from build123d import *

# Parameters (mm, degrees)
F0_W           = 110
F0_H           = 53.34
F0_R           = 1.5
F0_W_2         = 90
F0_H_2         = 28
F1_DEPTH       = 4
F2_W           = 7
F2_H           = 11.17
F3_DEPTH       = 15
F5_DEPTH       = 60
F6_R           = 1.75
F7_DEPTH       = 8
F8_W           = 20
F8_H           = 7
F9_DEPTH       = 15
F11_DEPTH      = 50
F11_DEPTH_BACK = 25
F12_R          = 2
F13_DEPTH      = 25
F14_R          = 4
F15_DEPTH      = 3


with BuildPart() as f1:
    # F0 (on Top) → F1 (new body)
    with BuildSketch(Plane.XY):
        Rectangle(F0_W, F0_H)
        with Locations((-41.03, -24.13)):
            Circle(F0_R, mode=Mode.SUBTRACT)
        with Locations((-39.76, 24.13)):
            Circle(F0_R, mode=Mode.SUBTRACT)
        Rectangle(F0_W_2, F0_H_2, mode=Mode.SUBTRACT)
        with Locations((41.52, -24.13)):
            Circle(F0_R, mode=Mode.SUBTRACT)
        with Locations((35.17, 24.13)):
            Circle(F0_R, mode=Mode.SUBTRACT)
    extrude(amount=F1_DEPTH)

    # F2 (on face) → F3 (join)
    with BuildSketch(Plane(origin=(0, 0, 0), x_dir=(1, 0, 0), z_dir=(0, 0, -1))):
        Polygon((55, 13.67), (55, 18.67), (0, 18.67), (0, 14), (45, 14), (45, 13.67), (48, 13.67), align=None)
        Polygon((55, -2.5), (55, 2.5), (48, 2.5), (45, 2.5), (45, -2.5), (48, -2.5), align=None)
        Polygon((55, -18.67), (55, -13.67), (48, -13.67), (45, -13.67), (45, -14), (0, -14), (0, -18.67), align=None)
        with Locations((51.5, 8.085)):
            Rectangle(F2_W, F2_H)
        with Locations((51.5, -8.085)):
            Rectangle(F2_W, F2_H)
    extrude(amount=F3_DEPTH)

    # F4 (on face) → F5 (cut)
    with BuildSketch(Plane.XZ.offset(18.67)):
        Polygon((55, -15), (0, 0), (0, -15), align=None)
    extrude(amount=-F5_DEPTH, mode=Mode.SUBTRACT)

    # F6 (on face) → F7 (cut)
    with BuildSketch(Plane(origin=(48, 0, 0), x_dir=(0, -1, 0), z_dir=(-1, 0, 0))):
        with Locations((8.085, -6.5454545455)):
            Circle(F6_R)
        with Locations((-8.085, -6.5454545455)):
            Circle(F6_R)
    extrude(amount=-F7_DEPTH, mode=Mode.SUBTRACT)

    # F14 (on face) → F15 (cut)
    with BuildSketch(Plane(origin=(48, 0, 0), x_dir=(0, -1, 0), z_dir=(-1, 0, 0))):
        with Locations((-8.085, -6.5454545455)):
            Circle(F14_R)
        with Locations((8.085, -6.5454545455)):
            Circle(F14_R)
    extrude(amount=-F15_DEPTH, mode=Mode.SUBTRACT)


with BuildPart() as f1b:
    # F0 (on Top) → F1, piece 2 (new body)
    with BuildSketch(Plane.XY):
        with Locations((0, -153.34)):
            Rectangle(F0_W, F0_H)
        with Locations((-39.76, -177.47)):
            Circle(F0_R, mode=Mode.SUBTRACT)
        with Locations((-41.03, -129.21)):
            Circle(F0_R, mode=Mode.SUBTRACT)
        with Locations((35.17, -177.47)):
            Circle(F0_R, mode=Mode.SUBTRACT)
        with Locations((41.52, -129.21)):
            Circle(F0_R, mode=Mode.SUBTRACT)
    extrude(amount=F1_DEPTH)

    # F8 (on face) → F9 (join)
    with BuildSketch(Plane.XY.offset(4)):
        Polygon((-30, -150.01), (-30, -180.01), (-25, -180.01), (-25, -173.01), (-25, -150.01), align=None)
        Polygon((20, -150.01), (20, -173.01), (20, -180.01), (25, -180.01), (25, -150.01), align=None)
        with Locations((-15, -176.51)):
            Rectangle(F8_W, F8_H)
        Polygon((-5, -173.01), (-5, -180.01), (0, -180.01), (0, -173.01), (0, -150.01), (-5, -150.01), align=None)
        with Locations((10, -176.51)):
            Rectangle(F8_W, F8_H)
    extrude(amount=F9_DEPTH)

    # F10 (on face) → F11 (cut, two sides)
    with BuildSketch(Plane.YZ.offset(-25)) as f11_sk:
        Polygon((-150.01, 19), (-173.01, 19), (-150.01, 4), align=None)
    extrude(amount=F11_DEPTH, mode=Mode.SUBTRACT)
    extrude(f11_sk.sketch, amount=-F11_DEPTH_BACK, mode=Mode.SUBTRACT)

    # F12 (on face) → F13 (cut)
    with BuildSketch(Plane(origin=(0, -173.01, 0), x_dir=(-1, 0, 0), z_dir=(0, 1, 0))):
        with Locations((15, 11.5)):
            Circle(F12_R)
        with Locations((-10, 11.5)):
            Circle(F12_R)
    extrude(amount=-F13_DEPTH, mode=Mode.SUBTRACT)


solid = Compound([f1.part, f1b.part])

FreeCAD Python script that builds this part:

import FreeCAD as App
import Part
import Sketcher

V = App.Vector

doc = App.newDocument("Part")
body = doc.addObject("PartDesign::Body", "Body")

# Sketch on XY plane
sketch1 = body.newObject("Sketcher::SketchObject", "Sketch")
sketch1.AttachmentSupport = (doc.getObject("XY_Plane"), [""])
sketch1.MapMode = "FlatFace"
sketch1.addGeometry([
    Part.LineSegment(V(-55, 26.7, 0), V(-55, -26.7, 0)),  # 0
    Part.LineSegment(V(-55, -26.7, 0), V(55, -26.7, 0)),  # 1
    Part.LineSegment(V(55, -26.7, 0), V(55, 26.7, 0)),  # 2
    Part.LineSegment(V(55, 26.7, 0), V(-55, 26.7, 0)),  # 3
    Part.Circle(V(-41, -24.1, 0), V(0, 0, 1), 1.5),  # 4
    Part.Circle(V(41.5, -24.1, 0), V(0, 0, 1), 1.5),  # 5
    Part.Circle(V(-39.8, 24.1, 0), V(0, 0, 1), 1.5),  # 6
    Part.LineSegment(V(45, -14, 0), V(-45, -14, 0)),  # 7
    Part.LineSegment(V(-45, -14, 0), V(-45, 14, 0)),  # 8
    Part.LineSegment(V(-45, 14, 0), V(45, 14, 0)),  # 9
    Part.LineSegment(V(45, 14, 0), V(45, -14, 0)),  # 10
    Part.Circle(V(35.2, 24.1, 0), V(0, 0, 1), 1.5),  # 11
], False)
sketch1.addConstraint([
    Sketcher.Constraint("Coincident", 0, 2, 1, 1),
    Sketcher.Constraint("Coincident", 1, 2, 2, 1),
    Sketcher.Constraint("Coincident", 2, 2, 3, 1),
    Sketcher.Constraint("Coincident", 3, 2, 0, 1),
    Sketcher.Constraint("Coincident", 7, 2, 8, 1),
    Sketcher.Constraint("Coincident", 8, 2, 9, 1),
    Sketcher.Constraint("Coincident", 9, 2, 10, 1),
    Sketcher.Constraint("Coincident", 10, 2, 7, 1),
    Sketcher.Constraint("Vertical", 0),
    Sketcher.Constraint("Horizontal", 1),
    Sketcher.Constraint("Vertical", 2),
    Sketcher.Constraint("Horizontal", 3),
    Sketcher.Constraint("Horizontal", 7),
    Sketcher.Constraint("Vertical", 8),
    Sketcher.Constraint("Horizontal", 9),
    Sketcher.Constraint("Vertical", 10),
    Sketcher.Constraint("Equal", 4, 5),
    Sketcher.Constraint("Equal", 5, 6),
    Sketcher.Constraint("Equal", 6, 11),
    Sketcher.Constraint("Symmetric", 0, 2, 2, 2, -1, 1),
    Sketcher.Constraint("Symmetric", 7, 2, 9, 2, -1, 1),
    Sketcher.Constraint("Horizontal", 4, 3, 5, 3),
    Sketcher.Constraint("Horizontal", 6, 3, 11, 3),
    Sketcher.Constraint("Diameter", 4, 3.0),
    Sketcher.Constraint("DistanceX", 1, 1, 1, 2, 110.0),
    Sketcher.Constraint("DistanceX", 7, 2, 7, 1, 90.0),
    Sketcher.Constraint("DistanceY", 8, 1, 8, 2, 28.0),
    Sketcher.Constraint("DistanceY", 0, 2, 0, 1, 53.34),
    Sketcher.Constraint("DistanceX", 4, 3, 11, 3, 76.2),
    Sketcher.Constraint("DistanceY", 0, 2, 6, 3, 50.8),
    Sketcher.Constraint("DistanceY", 5, 3, 2, 2, 50.8),
    Sketcher.Constraint("DistanceX", 4, 3, -1, 1, 41.03),
    Sketcher.Constraint("DistanceX", -1, 1, 5, 3, 41.52),
    Sketcher.Constraint("DistanceX", 6, 3, -1, 1, 39.76),
])
pad1 = body.newObject("PartDesign::Pad", "Pad")
pad1.Profile = sketch1
pad1.Length = 4

# Sketch on XY plane
sketch2 = body.newObject("Sketcher::SketchObject", "Sketch001")
sketch2.AttachmentSupport = (doc.getObject("XY_Plane"), [""])
sketch2.MapMode = "FlatFace"
sketch2.addGeometry([
    Part.LineSegment(V(55, -18.67, 0), V(0, -18.67, 0)),  # 0
    Part.LineSegment(V(0, -18.67, 0), V(0, -14, 0)),  # 1
    Part.LineSegment(V(0, -14, 0), V(45, -14, 0)),  # 2
    Part.LineSegment(V(45, -14, 0), V(45, -13.67, 0)),  # 3
    Part.LineSegment(V(45, -13.67, 0), V(48, -13.67, 0)),  # 4
    Part.LineSegment(V(48, -13.67, 0), V(48, -2.5, 0)),  # 5
    Part.LineSegment(V(48, -2.5, 0), V(45, -2.5, 0)),  # 6
    Part.LineSegment(V(45, -2.5, 0), V(45, 2.5, 0)),  # 7
    Part.LineSegment(V(45, 2.5, 0), V(48, 2.5, 0)),  # 8
    Part.LineSegment(V(48, 2.5, 0), V(48, 13.67, 0)),  # 9
    Part.LineSegment(V(48, 13.67, 0), V(45, 13.67, 0)),  # 10
    Part.LineSegment(V(45, 13.67, 0), V(45, 14, 0)),  # 11
    Part.LineSegment(V(45, 14, 0), V(0, 14, 0)),  # 12
    Part.LineSegment(V(0, 14, 0), V(0, 18.67, 0)),  # 13
    Part.LineSegment(V(0, 18.67, 0), V(55, 18.67, 0)),  # 14
    Part.LineSegment(V(55, 18.67, 0), V(55, -18.67, 0)),  # 15
], False)
sketch2.addConstraint([
    Sketcher.Constraint("Coincident", 0, 2, 1, 1),
    Sketcher.Constraint("Coincident", 1, 2, 2, 1),
    Sketcher.Constraint("Coincident", 2, 2, 3, 1),
    Sketcher.Constraint("Coincident", 3, 2, 4, 1),
    Sketcher.Constraint("Coincident", 4, 2, 5, 1),
    Sketcher.Constraint("Coincident", 5, 2, 6, 1),
    Sketcher.Constraint("Coincident", 6, 2, 7, 1),
    Sketcher.Constraint("Coincident", 7, 2, 8, 1),
    Sketcher.Constraint("Coincident", 8, 2, 9, 1),
    Sketcher.Constraint("Coincident", 9, 2, 10, 1),
    Sketcher.Constraint("Coincident", 10, 2, 11, 1),
    Sketcher.Constraint("Coincident", 11, 2, 12, 1),
    Sketcher.Constraint("Coincident", 12, 2, 13, 1),
    Sketcher.Constraint("Coincident", 13, 2, 14, 1),
    Sketcher.Constraint("Coincident", 14, 2, 15, 1),
    Sketcher.Constraint("Coincident", 15, 2, 0, 1),
    Sketcher.Constraint("Horizontal", 0),
    Sketcher.Constraint("Vertical", 1),
    Sketcher.Constraint("Horizontal", 2),
    Sketcher.Constraint("Vertical", 3),
    Sketcher.Constraint("Horizontal", 4),
    Sketcher.Constraint("Vertical", 5),
    Sketcher.Constraint("Horizontal", 6),
    Sketcher.Constraint("Vertical", 7),
    Sketcher.Constraint("Horizontal", 8),
    Sketcher.Constraint("Vertical", 9),
    Sketcher.Constraint("Horizontal", 10),
    Sketcher.Constraint("Vertical", 11),
    Sketcher.Constraint("Horizontal", 12),
    Sketcher.Constraint("Vertical", 13),
    Sketcher.Constraint("Horizontal", 14),
    Sketcher.Constraint("Vertical", 15),
    Sketcher.Constraint("Symmetric", 1, 2, 12, 2, -1, 1),
    Sketcher.Constraint("Symmetric", 5, 2, 8, 2, -1),
    Sketcher.Constraint("Symmetric", 3, 2, 10, 2, -1),
    Sketcher.Constraint("Symmetric", 0, 2, 13, 2, -1),
    Sketcher.Constraint("Vertical", 3, 2, 6, 2),
    Sketcher.Constraint("DistanceX", 0, 2, 0, 1, 55.0),
    Sketcher.Constraint("DistanceX", 2, 1, 2, 2, 45.0),
    Sketcher.Constraint("DistanceX", 4, 1, 4, 2, 3.0),
    Sketcher.Constraint("DistanceY", 7, 1, 7, 2, 5.0),
    Sketcher.Constraint("DistanceY", 1, 2, -1, 1, 14.0),
    Sketcher.Constraint("DistanceY", 0, 2, 3, 2, 5.0),
    Sketcher.Constraint("DistanceY", 1, 1, 1, 2, 4.67),
])
pad2 = body.newObject("PartDesign::Pad", "Pad001")
pad2.Profile = sketch2
pad2.Length = 15
pad2.Reversed = True

# Sketch on XZ plane
sketch3 = body.newObject("Sketcher::SketchObject", "Sketch002")
sketch3.AttachmentSupport = (doc.getObject("XZ_Plane"), [""])
sketch3.MapMode = "FlatFace"
sketch3.AttachmentOffset = App.Placement(V(0, 0, 18.67), App.Rotation())
sketch3.addGeometry([
    Part.LineSegment(V(55, -15, 0), V(0, 0, 0)),
    Part.LineSegment(V(0, 0, 0), V(0, -15, 0)),
    Part.LineSegment(V(0, -15, 0), V(55, -15, 0)),
], False)
sketch3.addConstraint([
    Sketcher.Constraint("Coincident", 0, 2, 1, 1),
    Sketcher.Constraint("Coincident", 1, 2, 2, 1),
    Sketcher.Constraint("Coincident", 2, 2, 0, 1),
    Sketcher.Constraint("Vertical", 1),
    Sketcher.Constraint("Horizontal", 2),
    Sketcher.Constraint("Coincident", 0, 2, -1, 1),
    Sketcher.Constraint("DistanceX", 2, 1, 2, 2, 55.0),
    Sketcher.Constraint("DistanceY", 1, 2, 1, 1, 15.0),
])
pocket1 = body.newObject("PartDesign::Pocket", "Pocket")
pocket1.Profile = sketch3
pocket1.Length = 60

# Sketch on YZ plane
sketch4 = body.newObject("Sketcher::SketchObject", "Sketch003")
sketch4.AttachmentSupport = (doc.getObject("YZ_Plane"), [""])
sketch4.MapMode = "FlatFace"
sketch4.AttachmentOffset = App.Placement(V(0, 0, 48), App.Rotation())
sketch4.addGeometry([
    Part.Circle(V(-8.1, -6.5, 0), V(0, 0, 1), 1.8),
    Part.Circle(V(8.1, -6.5, 0), V(0, 0, 1), 1.8),
], False)
sketch4.addConstraint([
    Sketcher.Constraint("Equal", 0, 1),
    Sketcher.Constraint("Symmetric", 0, 3, 1, 3, -2),
    Sketcher.Constraint("Diameter", 0, 3.5),
    Sketcher.Constraint("DistanceX", 0, 3, 1, 3, 16.17),
    Sketcher.Constraint("DistanceY", 0, 3, -1, 1, 6.545455),
])
pocket2 = body.newObject("PartDesign::Pocket", "Pocket001")
pocket2.Profile = sketch4
pocket2.Length = 8
pocket2.Reversed = True

# Sketch on YZ plane
sketch5 = body.newObject("Sketcher::SketchObject", "Sketch004")
sketch5.AttachmentSupport = (doc.getObject("YZ_Plane"), [""])
sketch5.MapMode = "FlatFace"
sketch5.AttachmentOffset = App.Placement(V(0, 0, 48), App.Rotation())
sketch5.addGeometry([
    Part.Circle(V(8.1, -6.5, 0), V(0, 0, 1), 4),
    Part.Circle(V(-8.1, -6.5, 0), V(0, 0, 1), 4),
], False)
sketch5.addConstraint([
    Sketcher.Constraint("Equal", 0, 1),
    Sketcher.Constraint("Symmetric", 0, 3, 1, 3, -2),
    Sketcher.Constraint("Diameter", 0, 8.0),
    Sketcher.Constraint("DistanceX", 1, 3, 0, 3, 16.17),
    Sketcher.Constraint("DistanceY", 0, 3, -1, 1, 6.545455),
])
pocket3 = body.newObject("PartDesign::Pocket", "Pocket002")
pocket3.Profile = sketch5
pocket3.Length = 3
pocket3.Reversed = True
body2 = doc.addObject("PartDesign::Body", "Body001")

# Sketch on XY plane
sketch6 = body2.newObject("Sketcher::SketchObject", "Sketch005")
sketch6.AttachmentSupport = (doc.getObject("XY_Plane001"), [""])
sketch6.MapMode = "FlatFace"
sketch6.addGeometry([
    Part.LineSegment(V(-55, -126.7, 0), V(-55, -180, 0)),  # 0
    Part.LineSegment(V(-55, -180, 0), V(55, -180, 0)),  # 1
    Part.LineSegment(V(55, -180, 0), V(55, -126.7, 0)),  # 2
    Part.LineSegment(V(55, -126.7, 0), V(-55, -126.7, 0)),  # 3
    Part.Circle(V(-39.8, -177.5, 0), V(0, 0, 1), 1.5),  # 4
    Part.Circle(V(35.2, -177.5, 0), V(0, 0, 1), 1.5),  # 5
    Part.Circle(V(-41, -129.2, 0), V(0, 0, 1), 1.5),  # 6
    Part.Circle(V(41.5, -129.2, 0), V(0, 0, 1), 1.5),  # 7
], False)
sketch6.addConstraint([
    Sketcher.Constraint("Coincident", 0, 2, 1, 1),
    Sketcher.Constraint("Coincident", 1, 2, 2, 1),
    Sketcher.Constraint("Coincident", 2, 2, 3, 1),
    Sketcher.Constraint("Coincident", 3, 2, 0, 1),
    Sketcher.Constraint("Vertical", 0),
    Sketcher.Constraint("Horizontal", 1),
    Sketcher.Constraint("Vertical", 2),
    Sketcher.Constraint("Horizontal", 3),
    Sketcher.Constraint("Equal", 4, 5),
    Sketcher.Constraint("Equal", 5, 6),
    Sketcher.Constraint("Equal", 6, 7),
    Sketcher.Constraint("Horizontal", 4, 3, 5, 3),
    Sketcher.Constraint("Horizontal", 6, 3, 7, 3),
    Sketcher.Constraint("Diameter", 4, 3.0),
    Sketcher.Constraint("DistanceX", 1, 1, 1, 2, 110.0),
    Sketcher.Constraint("DistanceX", 0, 2, -1, 1, 55.0),
    Sketcher.Constraint("DistanceY", 0, 2, 0, 1, 53.34),
    Sketcher.Constraint("DistanceX", 6, 3, 5, 3, 76.2),
    Sketcher.Constraint("DistanceY", 0, 2, 6, 3, 50.8),
    Sketcher.Constraint("DistanceY", 5, 3, 2, 2, 50.8),
    Sketcher.Constraint("DistanceX", 4, 3, -1, 1, 39.76),
    Sketcher.Constraint("DistanceY", 4, 3, -1, 1, 177.47),
    Sketcher.Constraint("DistanceX", -1, 1, 5, 3, 35.17),
    Sketcher.Constraint("DistanceX", -1, 1, 7, 3, 41.52),
])
pad3 = body2.newObject("PartDesign::Pad", "Pad002")
pad3.Profile = sketch6
pad3.Length = 4

# Sketch on XY plane
sketch7 = body2.newObject("Sketcher::SketchObject", "Sketch006")
sketch7.AttachmentSupport = (doc.getObject("XY_Plane001"), [""])
sketch7.MapMode = "FlatFace"
sketch7.AttachmentOffset = App.Placement(V(0, 0, 4), App.Rotation())
sketch7.addGeometry([
    Part.LineSegment(V(-30, -150, 0), V(-30, -180, 0)),  # 0
    Part.LineSegment(V(-30, -180, 0), V(25, -180, 0)),  # 1
    Part.LineSegment(V(25, -180, 0), V(25, -150, 0)),  # 2
    Part.LineSegment(V(25, -150, 0), V(20, -150, 0)),  # 3
    Part.LineSegment(V(20, -150, 0), V(20, -173, 0)),  # 4
    Part.LineSegment(V(20, -173, 0), V(0, -173, 0)),  # 5
    Part.LineSegment(V(0, -173, 0), V(0, -150, 0)),  # 6
    Part.LineSegment(V(0, -150, 0), V(-5, -150, 0)),  # 7
    Part.LineSegment(V(-5, -150, 0), V(-5, -173, 0)),  # 8
    Part.LineSegment(V(-5, -173, 0), V(-25, -173, 0)),  # 9
    Part.LineSegment(V(-25, -173, 0), V(-25, -150, 0)),  # 10
    Part.LineSegment(V(-25, -150, 0), V(-30, -150, 0)),  # 11
], False)
sketch7.addConstraint([
    Sketcher.Constraint("Coincident", 0, 2, 1, 1),
    Sketcher.Constraint("Coincident", 1, 2, 2, 1),
    Sketcher.Constraint("Coincident", 2, 2, 3, 1),
    Sketcher.Constraint("Coincident", 3, 2, 4, 1),
    Sketcher.Constraint("Coincident", 4, 2, 5, 1),
    Sketcher.Constraint("Coincident", 5, 2, 6, 1),
    Sketcher.Constraint("Coincident", 6, 2, 7, 1),
    Sketcher.Constraint("Coincident", 7, 2, 8, 1),
    Sketcher.Constraint("Coincident", 8, 2, 9, 1),
    Sketcher.Constraint("Coincident", 9, 2, 10, 1),
    Sketcher.Constraint("Coincident", 10, 2, 11, 1),
    Sketcher.Constraint("Coincident", 11, 2, 0, 1),
    Sketcher.Constraint("Vertical", 0),
    Sketcher.Constraint("Horizontal", 1),
    Sketcher.Constraint("Vertical", 2),
    Sketcher.Constraint("Horizontal", 3),
    Sketcher.Constraint("Vertical", 4),
    Sketcher.Constraint("Horizontal", 5),
    Sketcher.Constraint("Vertical", 6),
    Sketcher.Constraint("Horizontal", 7),
    Sketcher.Constraint("Vertical", 8),
    Sketcher.Constraint("Horizontal", 9),
    Sketcher.Constraint("Vertical", 10),
    Sketcher.Constraint("Horizontal", 11),
    Sketcher.Constraint("Symmetric", 2, 2, 10, 2, -2),
    Sketcher.Constraint("PointOnObject", 5, 2, -2),
    Sketcher.Constraint("Horizontal", 3, 2, 6, 2),
    Sketcher.Constraint("Horizontal", 5, 2, 8, 2),
    Sketcher.Constraint("Equal", 3, 7),
    Sketcher.Constraint("Equal", 7, 11),
    Sketcher.Constraint("DistanceX", 1, 1, 1, 2, 55.0),
    Sketcher.Constraint("DistanceX", 3, 2, 3, 1, 5.0),
    Sketcher.Constraint("DistanceY", 0, 2, 0, 1, 30.0),
    Sketcher.Constraint("DistanceY", 4, 2, 4, 1, 23.0),
    Sketcher.Constraint("DistanceY", 0, 2, -1, 1, 180.01),
])
pad4 = body2.newObject("PartDesign::Pad", "Pad003")
pad4.Profile = sketch7
pad4.Length = 15

# Sketch on YZ plane
sketch8 = body2.newObject("Sketcher::SketchObject", "Sketch007")
sketch8.AttachmentSupport = (doc.getObject("YZ_Plane001"), [""])
sketch8.MapMode = "FlatFace"
sketch8.AttachmentOffset = App.Placement(V(0, 0, -25), App.Rotation())
sketch8.addGeometry([
    Part.LineSegment(V(-150, 19, 0), V(-173, 19, 0)),
    Part.LineSegment(V(-173, 19, 0), V(-150, 4, 0)),
    Part.LineSegment(V(-150, 4, 0), V(-150, 19, 0)),
], False)
sketch8.addConstraint([
    Sketcher.Constraint("Coincident", 0, 2, 1, 1),
    Sketcher.Constraint("Coincident", 1, 2, 2, 1),
    Sketcher.Constraint("Coincident", 2, 2, 0, 1),
    Sketcher.Constraint("Horizontal", 0),
    Sketcher.Constraint("Vertical", 2),
    Sketcher.Constraint("DistanceX", 0, 2, 0, 1, 23.0),
    Sketcher.Constraint("DistanceY", 2, 1, 2, 2, 15.0),
    Sketcher.Constraint("DistanceY", -1, 1, 0, 2, 19.0),
    Sketcher.Constraint("DistanceX", 0, 2, -1, 1, 173.01),
])
pocket4 = body2.newObject("PartDesign::Pocket", "Pocket003")
pocket4.Profile = sketch8
pocket4.Type = "ThroughAll"
pocket4.Midplane = True

# Sketch on XZ plane
sketch9 = body2.newObject("Sketcher::SketchObject", "Sketch008")
sketch9.AttachmentSupport = (doc.getObject("XZ_Plane001"), [""])
sketch9.MapMode = "FlatFace"
sketch9.AttachmentOffset = App.Placement(V(0, 0, 173.01), App.Rotation())
sketch9.addGeometry([
    Part.Circle(V(-15, 11.5, 0), V(0, 0, 1), 2),
    Part.Circle(V(10, 11.5, 0), V(0, 0, 1), 2),
], False)
sketch9.addConstraint([
    Sketcher.Constraint("Equal", 0, 1),
    Sketcher.Constraint("Horizontal", 0, 3, 1, 3),
    Sketcher.Constraint("Diameter", 0, 4.0),
    Sketcher.Constraint("DistanceX", 0, 3, -1, 1, 15.0),
    Sketcher.Constraint("DistanceX", -1, 1, 1, 3, 10.0),
    Sketcher.Constraint("DistanceY", -1, 1, 0, 3, 11.5),
])
pocket5 = body2.newObject("PartDesign::Pocket", "Pocket004")
pocket5.Profile = sketch9
pocket5.Length = 25
pocket5.Reversed = True

doc.recompute()
